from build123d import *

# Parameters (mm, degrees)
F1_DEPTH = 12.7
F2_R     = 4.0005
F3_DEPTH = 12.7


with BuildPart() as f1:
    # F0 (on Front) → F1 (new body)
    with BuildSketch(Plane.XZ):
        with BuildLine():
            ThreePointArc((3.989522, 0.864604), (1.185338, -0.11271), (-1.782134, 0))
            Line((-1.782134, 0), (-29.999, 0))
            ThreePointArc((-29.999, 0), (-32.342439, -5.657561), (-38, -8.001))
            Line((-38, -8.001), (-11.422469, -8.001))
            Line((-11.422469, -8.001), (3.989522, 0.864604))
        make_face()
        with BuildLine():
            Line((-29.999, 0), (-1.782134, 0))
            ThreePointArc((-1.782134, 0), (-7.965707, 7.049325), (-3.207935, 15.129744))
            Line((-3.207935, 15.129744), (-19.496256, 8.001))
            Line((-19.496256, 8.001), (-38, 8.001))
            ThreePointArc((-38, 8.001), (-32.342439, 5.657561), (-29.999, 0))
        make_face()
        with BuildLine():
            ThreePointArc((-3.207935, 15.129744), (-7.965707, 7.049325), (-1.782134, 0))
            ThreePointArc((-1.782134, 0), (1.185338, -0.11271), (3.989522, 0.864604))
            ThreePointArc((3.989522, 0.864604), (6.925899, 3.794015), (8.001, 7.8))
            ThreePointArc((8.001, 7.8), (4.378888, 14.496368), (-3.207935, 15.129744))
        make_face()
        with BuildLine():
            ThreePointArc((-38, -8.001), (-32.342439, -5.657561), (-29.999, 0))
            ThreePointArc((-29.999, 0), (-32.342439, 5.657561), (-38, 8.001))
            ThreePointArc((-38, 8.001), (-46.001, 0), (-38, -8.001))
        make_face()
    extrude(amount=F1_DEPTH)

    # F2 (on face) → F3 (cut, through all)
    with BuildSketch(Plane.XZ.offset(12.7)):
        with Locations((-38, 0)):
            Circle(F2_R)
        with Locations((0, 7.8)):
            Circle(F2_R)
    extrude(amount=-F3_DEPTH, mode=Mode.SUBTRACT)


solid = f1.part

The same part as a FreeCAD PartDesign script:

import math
import FreeCAD as App
import Part
import Sketcher

V = App.Vector
Q = App.Units.Quantity

doc = App.newDocument("Part")
params = doc.addObject("Spreadsheet::Sheet", "Params")
for row, (alias, value) in enumerate([
    ("sketch1_radius", "0.315 in"),
    ("sketch1_radius2", "0.3150002 in"),
    ("sketch1_length", "0.7 in"),
    ("pad1_length", "0.5 in"),
    ("sketch2_diameter", "0.315 in"),
], start=1):
    params.set(f"A{row}", alias)
    params.set(f"B{row}", "=" + value)
    params.setAlias(f"B{row}", alias)

body = doc.addObject("PartDesign::Body", "Body")

sketch1 = body.newObject("Sketcher::SketchObject", "Sketch")
sketch1.AttachmentSupport = (doc.getObject("XZ_Plane"), [""])
sketch1.MapMode = "FlatFace"
sketch1.addGeometry(Part.LineSegment(V(-3, 15, 0), V(-19, 8, 0)), False)
sketch1.addGeometry(Part.LineSegment(V(-19, 8, 0), V(-38, 8, 0)), False)
sketch1.addGeometry(Part.ArcOfCircle(Part.Circle(V(-38, 0, 0), V(0, 0, 1), 8), math.radians(90), math.radians(270)), False)
sketch1.addGeometry(Part.LineSegment(V(-38, -8, 0), V(-11, -8, 0)), False)
sketch1.addGeometry(Part.LineSegment(V(-11, -8, 0), V(4, 1, 0)), False)
sketch1.addGeometry(Part.ArcOfCircle(Part.Circle(V(0, 8, 0), V(0, 0, 1), 8), math.radians(-60), math.radians(0)), False)
sketch1.addGeometry(Part.ArcOfCircle(Part.Circle(V(0, 8, 0), V(0, 0, 1), 8), math.radians(0), math.radians(114)), False)
sketch1.addConstraint(Sketcher.Constraint("Coincident", 0, 2, 1, 1))
sketch1.addConstraint(Sketcher.Constraint("Tangent", 1, 2, 2, 1))
sketch1.addConstraint(Sketcher.Constraint("Tangent", 2, 2, 3, 1))
sketch1.addConstraint(Sketcher.Constraint("Coincident", 3, 2, 4, 1))
sketch1.addConstraint(Sketcher.Constraint("Tangent", 4, 2, 5, 1))
sketch1.addConstraint(Sketcher.Constraint("Tangent", 5, 2, 6, 1))
sketch1.addConstraint(Sketcher.Constraint("Tangent", 6, 2, 0, 1))
sketch1.addConstraint(Sketcher.Constraint("Horizontal", 1))
sketch1.addConstraint(Sketcher.Constraint("Horizontal", 3))
sketch1.addConstraint(Sketcher.Constraint("Equal", 2, 6))
sketch1.addConstraint(Sketcher.Constraint("PointOnObject", 2, 3, -1))
sketch1.addConstraint(Sketcher.Constraint("PointOnObject", 6, 3, -2))
sketch1.addConstraint(Sketcher.Constraint("Horizontal", 6, 3, 5, 2))
sketch1.addConstraint(Sketcher.Constraint("Equal", 0, 4))
sketch1.addConstraint(Sketcher.Constraint("Radius", 2, Q("0.315 in")))
sketch1.addConstraint(Sketcher.Constraint("Radius", 5, Q("0.3150002 in")))
sketch1.addConstraint(Sketcher.Constraint("Distance", 0, Q("0.7 in")))
sketch1.addConstraint(Sketcher.Constraint("DistanceX", 3, 1, 3, 2, Q("26.577531 mm")))
sketch1.addConstraint(Sketcher.Constraint("DistanceX", 2, 3, -1, 1, Q("38 mm")))
sketch1.setExpression("Constraints[14]", "Params.sketch1_radius")
sketch1.setExpression("Constraints[15]", "Params.sketch1_radius2")
sketch1.setExpression("Constraints[16]", "Params.sketch1_length")
pad1 = body.newObject("PartDesign::Pad", "Pad")
pad1.Profile = sketch1
pad1.setExpression("Length", "Params.pad1_length")

sketch2 = body.newObject("Sketcher::SketchObject", "Sketch001")
sketch2.AttachmentSupport = (doc.getObject("XZ_Plane"), [""])
sketch2.MapMode = "FlatFace"
sketch2.AttachmentOffset = App.Placement(V(0, 0, 0.5 * 25.4), App.Rotation())
sketch2.addGeometry(Part.Circle(V(-38, 0, 0), V(0, 0, 1), 4), False)
sketch2.addGeometry(Part.Circle(V(0, 7.8, 0), V(0, 0, 1), 4), False)
sketch2.addConstraint(Sketcher.Constraint("Equal", 0, 1))
sketch2.addConstraint(Sketcher.Constraint("PointOnObject", 0, 3, -1))
sketch2.addConstraint(Sketcher.Constraint("PointOnObject", 1, 3, -2))
sketch2.addConstraint(Sketcher.Constraint("Diameter", 0, Q("0.315 in")))
sketch2.addConstraint(Sketcher.Constraint("DistanceX", 0, 3, -1, 1, Q("38 mm")))
sketch2.addConstraint(Sketcher.Constraint("DistanceY", -1, 1, 1, 3, Q("7.8 mm")))
sketch2.setExpression("Constraints[3]", "Params.sketch2_diameter")
pocket1 = body.newObject("PartDesign::Pocket", "Pocket")
pocket1.Profile = sketch2
pocket1.Type = "ThroughAll"

doc.recompute()
